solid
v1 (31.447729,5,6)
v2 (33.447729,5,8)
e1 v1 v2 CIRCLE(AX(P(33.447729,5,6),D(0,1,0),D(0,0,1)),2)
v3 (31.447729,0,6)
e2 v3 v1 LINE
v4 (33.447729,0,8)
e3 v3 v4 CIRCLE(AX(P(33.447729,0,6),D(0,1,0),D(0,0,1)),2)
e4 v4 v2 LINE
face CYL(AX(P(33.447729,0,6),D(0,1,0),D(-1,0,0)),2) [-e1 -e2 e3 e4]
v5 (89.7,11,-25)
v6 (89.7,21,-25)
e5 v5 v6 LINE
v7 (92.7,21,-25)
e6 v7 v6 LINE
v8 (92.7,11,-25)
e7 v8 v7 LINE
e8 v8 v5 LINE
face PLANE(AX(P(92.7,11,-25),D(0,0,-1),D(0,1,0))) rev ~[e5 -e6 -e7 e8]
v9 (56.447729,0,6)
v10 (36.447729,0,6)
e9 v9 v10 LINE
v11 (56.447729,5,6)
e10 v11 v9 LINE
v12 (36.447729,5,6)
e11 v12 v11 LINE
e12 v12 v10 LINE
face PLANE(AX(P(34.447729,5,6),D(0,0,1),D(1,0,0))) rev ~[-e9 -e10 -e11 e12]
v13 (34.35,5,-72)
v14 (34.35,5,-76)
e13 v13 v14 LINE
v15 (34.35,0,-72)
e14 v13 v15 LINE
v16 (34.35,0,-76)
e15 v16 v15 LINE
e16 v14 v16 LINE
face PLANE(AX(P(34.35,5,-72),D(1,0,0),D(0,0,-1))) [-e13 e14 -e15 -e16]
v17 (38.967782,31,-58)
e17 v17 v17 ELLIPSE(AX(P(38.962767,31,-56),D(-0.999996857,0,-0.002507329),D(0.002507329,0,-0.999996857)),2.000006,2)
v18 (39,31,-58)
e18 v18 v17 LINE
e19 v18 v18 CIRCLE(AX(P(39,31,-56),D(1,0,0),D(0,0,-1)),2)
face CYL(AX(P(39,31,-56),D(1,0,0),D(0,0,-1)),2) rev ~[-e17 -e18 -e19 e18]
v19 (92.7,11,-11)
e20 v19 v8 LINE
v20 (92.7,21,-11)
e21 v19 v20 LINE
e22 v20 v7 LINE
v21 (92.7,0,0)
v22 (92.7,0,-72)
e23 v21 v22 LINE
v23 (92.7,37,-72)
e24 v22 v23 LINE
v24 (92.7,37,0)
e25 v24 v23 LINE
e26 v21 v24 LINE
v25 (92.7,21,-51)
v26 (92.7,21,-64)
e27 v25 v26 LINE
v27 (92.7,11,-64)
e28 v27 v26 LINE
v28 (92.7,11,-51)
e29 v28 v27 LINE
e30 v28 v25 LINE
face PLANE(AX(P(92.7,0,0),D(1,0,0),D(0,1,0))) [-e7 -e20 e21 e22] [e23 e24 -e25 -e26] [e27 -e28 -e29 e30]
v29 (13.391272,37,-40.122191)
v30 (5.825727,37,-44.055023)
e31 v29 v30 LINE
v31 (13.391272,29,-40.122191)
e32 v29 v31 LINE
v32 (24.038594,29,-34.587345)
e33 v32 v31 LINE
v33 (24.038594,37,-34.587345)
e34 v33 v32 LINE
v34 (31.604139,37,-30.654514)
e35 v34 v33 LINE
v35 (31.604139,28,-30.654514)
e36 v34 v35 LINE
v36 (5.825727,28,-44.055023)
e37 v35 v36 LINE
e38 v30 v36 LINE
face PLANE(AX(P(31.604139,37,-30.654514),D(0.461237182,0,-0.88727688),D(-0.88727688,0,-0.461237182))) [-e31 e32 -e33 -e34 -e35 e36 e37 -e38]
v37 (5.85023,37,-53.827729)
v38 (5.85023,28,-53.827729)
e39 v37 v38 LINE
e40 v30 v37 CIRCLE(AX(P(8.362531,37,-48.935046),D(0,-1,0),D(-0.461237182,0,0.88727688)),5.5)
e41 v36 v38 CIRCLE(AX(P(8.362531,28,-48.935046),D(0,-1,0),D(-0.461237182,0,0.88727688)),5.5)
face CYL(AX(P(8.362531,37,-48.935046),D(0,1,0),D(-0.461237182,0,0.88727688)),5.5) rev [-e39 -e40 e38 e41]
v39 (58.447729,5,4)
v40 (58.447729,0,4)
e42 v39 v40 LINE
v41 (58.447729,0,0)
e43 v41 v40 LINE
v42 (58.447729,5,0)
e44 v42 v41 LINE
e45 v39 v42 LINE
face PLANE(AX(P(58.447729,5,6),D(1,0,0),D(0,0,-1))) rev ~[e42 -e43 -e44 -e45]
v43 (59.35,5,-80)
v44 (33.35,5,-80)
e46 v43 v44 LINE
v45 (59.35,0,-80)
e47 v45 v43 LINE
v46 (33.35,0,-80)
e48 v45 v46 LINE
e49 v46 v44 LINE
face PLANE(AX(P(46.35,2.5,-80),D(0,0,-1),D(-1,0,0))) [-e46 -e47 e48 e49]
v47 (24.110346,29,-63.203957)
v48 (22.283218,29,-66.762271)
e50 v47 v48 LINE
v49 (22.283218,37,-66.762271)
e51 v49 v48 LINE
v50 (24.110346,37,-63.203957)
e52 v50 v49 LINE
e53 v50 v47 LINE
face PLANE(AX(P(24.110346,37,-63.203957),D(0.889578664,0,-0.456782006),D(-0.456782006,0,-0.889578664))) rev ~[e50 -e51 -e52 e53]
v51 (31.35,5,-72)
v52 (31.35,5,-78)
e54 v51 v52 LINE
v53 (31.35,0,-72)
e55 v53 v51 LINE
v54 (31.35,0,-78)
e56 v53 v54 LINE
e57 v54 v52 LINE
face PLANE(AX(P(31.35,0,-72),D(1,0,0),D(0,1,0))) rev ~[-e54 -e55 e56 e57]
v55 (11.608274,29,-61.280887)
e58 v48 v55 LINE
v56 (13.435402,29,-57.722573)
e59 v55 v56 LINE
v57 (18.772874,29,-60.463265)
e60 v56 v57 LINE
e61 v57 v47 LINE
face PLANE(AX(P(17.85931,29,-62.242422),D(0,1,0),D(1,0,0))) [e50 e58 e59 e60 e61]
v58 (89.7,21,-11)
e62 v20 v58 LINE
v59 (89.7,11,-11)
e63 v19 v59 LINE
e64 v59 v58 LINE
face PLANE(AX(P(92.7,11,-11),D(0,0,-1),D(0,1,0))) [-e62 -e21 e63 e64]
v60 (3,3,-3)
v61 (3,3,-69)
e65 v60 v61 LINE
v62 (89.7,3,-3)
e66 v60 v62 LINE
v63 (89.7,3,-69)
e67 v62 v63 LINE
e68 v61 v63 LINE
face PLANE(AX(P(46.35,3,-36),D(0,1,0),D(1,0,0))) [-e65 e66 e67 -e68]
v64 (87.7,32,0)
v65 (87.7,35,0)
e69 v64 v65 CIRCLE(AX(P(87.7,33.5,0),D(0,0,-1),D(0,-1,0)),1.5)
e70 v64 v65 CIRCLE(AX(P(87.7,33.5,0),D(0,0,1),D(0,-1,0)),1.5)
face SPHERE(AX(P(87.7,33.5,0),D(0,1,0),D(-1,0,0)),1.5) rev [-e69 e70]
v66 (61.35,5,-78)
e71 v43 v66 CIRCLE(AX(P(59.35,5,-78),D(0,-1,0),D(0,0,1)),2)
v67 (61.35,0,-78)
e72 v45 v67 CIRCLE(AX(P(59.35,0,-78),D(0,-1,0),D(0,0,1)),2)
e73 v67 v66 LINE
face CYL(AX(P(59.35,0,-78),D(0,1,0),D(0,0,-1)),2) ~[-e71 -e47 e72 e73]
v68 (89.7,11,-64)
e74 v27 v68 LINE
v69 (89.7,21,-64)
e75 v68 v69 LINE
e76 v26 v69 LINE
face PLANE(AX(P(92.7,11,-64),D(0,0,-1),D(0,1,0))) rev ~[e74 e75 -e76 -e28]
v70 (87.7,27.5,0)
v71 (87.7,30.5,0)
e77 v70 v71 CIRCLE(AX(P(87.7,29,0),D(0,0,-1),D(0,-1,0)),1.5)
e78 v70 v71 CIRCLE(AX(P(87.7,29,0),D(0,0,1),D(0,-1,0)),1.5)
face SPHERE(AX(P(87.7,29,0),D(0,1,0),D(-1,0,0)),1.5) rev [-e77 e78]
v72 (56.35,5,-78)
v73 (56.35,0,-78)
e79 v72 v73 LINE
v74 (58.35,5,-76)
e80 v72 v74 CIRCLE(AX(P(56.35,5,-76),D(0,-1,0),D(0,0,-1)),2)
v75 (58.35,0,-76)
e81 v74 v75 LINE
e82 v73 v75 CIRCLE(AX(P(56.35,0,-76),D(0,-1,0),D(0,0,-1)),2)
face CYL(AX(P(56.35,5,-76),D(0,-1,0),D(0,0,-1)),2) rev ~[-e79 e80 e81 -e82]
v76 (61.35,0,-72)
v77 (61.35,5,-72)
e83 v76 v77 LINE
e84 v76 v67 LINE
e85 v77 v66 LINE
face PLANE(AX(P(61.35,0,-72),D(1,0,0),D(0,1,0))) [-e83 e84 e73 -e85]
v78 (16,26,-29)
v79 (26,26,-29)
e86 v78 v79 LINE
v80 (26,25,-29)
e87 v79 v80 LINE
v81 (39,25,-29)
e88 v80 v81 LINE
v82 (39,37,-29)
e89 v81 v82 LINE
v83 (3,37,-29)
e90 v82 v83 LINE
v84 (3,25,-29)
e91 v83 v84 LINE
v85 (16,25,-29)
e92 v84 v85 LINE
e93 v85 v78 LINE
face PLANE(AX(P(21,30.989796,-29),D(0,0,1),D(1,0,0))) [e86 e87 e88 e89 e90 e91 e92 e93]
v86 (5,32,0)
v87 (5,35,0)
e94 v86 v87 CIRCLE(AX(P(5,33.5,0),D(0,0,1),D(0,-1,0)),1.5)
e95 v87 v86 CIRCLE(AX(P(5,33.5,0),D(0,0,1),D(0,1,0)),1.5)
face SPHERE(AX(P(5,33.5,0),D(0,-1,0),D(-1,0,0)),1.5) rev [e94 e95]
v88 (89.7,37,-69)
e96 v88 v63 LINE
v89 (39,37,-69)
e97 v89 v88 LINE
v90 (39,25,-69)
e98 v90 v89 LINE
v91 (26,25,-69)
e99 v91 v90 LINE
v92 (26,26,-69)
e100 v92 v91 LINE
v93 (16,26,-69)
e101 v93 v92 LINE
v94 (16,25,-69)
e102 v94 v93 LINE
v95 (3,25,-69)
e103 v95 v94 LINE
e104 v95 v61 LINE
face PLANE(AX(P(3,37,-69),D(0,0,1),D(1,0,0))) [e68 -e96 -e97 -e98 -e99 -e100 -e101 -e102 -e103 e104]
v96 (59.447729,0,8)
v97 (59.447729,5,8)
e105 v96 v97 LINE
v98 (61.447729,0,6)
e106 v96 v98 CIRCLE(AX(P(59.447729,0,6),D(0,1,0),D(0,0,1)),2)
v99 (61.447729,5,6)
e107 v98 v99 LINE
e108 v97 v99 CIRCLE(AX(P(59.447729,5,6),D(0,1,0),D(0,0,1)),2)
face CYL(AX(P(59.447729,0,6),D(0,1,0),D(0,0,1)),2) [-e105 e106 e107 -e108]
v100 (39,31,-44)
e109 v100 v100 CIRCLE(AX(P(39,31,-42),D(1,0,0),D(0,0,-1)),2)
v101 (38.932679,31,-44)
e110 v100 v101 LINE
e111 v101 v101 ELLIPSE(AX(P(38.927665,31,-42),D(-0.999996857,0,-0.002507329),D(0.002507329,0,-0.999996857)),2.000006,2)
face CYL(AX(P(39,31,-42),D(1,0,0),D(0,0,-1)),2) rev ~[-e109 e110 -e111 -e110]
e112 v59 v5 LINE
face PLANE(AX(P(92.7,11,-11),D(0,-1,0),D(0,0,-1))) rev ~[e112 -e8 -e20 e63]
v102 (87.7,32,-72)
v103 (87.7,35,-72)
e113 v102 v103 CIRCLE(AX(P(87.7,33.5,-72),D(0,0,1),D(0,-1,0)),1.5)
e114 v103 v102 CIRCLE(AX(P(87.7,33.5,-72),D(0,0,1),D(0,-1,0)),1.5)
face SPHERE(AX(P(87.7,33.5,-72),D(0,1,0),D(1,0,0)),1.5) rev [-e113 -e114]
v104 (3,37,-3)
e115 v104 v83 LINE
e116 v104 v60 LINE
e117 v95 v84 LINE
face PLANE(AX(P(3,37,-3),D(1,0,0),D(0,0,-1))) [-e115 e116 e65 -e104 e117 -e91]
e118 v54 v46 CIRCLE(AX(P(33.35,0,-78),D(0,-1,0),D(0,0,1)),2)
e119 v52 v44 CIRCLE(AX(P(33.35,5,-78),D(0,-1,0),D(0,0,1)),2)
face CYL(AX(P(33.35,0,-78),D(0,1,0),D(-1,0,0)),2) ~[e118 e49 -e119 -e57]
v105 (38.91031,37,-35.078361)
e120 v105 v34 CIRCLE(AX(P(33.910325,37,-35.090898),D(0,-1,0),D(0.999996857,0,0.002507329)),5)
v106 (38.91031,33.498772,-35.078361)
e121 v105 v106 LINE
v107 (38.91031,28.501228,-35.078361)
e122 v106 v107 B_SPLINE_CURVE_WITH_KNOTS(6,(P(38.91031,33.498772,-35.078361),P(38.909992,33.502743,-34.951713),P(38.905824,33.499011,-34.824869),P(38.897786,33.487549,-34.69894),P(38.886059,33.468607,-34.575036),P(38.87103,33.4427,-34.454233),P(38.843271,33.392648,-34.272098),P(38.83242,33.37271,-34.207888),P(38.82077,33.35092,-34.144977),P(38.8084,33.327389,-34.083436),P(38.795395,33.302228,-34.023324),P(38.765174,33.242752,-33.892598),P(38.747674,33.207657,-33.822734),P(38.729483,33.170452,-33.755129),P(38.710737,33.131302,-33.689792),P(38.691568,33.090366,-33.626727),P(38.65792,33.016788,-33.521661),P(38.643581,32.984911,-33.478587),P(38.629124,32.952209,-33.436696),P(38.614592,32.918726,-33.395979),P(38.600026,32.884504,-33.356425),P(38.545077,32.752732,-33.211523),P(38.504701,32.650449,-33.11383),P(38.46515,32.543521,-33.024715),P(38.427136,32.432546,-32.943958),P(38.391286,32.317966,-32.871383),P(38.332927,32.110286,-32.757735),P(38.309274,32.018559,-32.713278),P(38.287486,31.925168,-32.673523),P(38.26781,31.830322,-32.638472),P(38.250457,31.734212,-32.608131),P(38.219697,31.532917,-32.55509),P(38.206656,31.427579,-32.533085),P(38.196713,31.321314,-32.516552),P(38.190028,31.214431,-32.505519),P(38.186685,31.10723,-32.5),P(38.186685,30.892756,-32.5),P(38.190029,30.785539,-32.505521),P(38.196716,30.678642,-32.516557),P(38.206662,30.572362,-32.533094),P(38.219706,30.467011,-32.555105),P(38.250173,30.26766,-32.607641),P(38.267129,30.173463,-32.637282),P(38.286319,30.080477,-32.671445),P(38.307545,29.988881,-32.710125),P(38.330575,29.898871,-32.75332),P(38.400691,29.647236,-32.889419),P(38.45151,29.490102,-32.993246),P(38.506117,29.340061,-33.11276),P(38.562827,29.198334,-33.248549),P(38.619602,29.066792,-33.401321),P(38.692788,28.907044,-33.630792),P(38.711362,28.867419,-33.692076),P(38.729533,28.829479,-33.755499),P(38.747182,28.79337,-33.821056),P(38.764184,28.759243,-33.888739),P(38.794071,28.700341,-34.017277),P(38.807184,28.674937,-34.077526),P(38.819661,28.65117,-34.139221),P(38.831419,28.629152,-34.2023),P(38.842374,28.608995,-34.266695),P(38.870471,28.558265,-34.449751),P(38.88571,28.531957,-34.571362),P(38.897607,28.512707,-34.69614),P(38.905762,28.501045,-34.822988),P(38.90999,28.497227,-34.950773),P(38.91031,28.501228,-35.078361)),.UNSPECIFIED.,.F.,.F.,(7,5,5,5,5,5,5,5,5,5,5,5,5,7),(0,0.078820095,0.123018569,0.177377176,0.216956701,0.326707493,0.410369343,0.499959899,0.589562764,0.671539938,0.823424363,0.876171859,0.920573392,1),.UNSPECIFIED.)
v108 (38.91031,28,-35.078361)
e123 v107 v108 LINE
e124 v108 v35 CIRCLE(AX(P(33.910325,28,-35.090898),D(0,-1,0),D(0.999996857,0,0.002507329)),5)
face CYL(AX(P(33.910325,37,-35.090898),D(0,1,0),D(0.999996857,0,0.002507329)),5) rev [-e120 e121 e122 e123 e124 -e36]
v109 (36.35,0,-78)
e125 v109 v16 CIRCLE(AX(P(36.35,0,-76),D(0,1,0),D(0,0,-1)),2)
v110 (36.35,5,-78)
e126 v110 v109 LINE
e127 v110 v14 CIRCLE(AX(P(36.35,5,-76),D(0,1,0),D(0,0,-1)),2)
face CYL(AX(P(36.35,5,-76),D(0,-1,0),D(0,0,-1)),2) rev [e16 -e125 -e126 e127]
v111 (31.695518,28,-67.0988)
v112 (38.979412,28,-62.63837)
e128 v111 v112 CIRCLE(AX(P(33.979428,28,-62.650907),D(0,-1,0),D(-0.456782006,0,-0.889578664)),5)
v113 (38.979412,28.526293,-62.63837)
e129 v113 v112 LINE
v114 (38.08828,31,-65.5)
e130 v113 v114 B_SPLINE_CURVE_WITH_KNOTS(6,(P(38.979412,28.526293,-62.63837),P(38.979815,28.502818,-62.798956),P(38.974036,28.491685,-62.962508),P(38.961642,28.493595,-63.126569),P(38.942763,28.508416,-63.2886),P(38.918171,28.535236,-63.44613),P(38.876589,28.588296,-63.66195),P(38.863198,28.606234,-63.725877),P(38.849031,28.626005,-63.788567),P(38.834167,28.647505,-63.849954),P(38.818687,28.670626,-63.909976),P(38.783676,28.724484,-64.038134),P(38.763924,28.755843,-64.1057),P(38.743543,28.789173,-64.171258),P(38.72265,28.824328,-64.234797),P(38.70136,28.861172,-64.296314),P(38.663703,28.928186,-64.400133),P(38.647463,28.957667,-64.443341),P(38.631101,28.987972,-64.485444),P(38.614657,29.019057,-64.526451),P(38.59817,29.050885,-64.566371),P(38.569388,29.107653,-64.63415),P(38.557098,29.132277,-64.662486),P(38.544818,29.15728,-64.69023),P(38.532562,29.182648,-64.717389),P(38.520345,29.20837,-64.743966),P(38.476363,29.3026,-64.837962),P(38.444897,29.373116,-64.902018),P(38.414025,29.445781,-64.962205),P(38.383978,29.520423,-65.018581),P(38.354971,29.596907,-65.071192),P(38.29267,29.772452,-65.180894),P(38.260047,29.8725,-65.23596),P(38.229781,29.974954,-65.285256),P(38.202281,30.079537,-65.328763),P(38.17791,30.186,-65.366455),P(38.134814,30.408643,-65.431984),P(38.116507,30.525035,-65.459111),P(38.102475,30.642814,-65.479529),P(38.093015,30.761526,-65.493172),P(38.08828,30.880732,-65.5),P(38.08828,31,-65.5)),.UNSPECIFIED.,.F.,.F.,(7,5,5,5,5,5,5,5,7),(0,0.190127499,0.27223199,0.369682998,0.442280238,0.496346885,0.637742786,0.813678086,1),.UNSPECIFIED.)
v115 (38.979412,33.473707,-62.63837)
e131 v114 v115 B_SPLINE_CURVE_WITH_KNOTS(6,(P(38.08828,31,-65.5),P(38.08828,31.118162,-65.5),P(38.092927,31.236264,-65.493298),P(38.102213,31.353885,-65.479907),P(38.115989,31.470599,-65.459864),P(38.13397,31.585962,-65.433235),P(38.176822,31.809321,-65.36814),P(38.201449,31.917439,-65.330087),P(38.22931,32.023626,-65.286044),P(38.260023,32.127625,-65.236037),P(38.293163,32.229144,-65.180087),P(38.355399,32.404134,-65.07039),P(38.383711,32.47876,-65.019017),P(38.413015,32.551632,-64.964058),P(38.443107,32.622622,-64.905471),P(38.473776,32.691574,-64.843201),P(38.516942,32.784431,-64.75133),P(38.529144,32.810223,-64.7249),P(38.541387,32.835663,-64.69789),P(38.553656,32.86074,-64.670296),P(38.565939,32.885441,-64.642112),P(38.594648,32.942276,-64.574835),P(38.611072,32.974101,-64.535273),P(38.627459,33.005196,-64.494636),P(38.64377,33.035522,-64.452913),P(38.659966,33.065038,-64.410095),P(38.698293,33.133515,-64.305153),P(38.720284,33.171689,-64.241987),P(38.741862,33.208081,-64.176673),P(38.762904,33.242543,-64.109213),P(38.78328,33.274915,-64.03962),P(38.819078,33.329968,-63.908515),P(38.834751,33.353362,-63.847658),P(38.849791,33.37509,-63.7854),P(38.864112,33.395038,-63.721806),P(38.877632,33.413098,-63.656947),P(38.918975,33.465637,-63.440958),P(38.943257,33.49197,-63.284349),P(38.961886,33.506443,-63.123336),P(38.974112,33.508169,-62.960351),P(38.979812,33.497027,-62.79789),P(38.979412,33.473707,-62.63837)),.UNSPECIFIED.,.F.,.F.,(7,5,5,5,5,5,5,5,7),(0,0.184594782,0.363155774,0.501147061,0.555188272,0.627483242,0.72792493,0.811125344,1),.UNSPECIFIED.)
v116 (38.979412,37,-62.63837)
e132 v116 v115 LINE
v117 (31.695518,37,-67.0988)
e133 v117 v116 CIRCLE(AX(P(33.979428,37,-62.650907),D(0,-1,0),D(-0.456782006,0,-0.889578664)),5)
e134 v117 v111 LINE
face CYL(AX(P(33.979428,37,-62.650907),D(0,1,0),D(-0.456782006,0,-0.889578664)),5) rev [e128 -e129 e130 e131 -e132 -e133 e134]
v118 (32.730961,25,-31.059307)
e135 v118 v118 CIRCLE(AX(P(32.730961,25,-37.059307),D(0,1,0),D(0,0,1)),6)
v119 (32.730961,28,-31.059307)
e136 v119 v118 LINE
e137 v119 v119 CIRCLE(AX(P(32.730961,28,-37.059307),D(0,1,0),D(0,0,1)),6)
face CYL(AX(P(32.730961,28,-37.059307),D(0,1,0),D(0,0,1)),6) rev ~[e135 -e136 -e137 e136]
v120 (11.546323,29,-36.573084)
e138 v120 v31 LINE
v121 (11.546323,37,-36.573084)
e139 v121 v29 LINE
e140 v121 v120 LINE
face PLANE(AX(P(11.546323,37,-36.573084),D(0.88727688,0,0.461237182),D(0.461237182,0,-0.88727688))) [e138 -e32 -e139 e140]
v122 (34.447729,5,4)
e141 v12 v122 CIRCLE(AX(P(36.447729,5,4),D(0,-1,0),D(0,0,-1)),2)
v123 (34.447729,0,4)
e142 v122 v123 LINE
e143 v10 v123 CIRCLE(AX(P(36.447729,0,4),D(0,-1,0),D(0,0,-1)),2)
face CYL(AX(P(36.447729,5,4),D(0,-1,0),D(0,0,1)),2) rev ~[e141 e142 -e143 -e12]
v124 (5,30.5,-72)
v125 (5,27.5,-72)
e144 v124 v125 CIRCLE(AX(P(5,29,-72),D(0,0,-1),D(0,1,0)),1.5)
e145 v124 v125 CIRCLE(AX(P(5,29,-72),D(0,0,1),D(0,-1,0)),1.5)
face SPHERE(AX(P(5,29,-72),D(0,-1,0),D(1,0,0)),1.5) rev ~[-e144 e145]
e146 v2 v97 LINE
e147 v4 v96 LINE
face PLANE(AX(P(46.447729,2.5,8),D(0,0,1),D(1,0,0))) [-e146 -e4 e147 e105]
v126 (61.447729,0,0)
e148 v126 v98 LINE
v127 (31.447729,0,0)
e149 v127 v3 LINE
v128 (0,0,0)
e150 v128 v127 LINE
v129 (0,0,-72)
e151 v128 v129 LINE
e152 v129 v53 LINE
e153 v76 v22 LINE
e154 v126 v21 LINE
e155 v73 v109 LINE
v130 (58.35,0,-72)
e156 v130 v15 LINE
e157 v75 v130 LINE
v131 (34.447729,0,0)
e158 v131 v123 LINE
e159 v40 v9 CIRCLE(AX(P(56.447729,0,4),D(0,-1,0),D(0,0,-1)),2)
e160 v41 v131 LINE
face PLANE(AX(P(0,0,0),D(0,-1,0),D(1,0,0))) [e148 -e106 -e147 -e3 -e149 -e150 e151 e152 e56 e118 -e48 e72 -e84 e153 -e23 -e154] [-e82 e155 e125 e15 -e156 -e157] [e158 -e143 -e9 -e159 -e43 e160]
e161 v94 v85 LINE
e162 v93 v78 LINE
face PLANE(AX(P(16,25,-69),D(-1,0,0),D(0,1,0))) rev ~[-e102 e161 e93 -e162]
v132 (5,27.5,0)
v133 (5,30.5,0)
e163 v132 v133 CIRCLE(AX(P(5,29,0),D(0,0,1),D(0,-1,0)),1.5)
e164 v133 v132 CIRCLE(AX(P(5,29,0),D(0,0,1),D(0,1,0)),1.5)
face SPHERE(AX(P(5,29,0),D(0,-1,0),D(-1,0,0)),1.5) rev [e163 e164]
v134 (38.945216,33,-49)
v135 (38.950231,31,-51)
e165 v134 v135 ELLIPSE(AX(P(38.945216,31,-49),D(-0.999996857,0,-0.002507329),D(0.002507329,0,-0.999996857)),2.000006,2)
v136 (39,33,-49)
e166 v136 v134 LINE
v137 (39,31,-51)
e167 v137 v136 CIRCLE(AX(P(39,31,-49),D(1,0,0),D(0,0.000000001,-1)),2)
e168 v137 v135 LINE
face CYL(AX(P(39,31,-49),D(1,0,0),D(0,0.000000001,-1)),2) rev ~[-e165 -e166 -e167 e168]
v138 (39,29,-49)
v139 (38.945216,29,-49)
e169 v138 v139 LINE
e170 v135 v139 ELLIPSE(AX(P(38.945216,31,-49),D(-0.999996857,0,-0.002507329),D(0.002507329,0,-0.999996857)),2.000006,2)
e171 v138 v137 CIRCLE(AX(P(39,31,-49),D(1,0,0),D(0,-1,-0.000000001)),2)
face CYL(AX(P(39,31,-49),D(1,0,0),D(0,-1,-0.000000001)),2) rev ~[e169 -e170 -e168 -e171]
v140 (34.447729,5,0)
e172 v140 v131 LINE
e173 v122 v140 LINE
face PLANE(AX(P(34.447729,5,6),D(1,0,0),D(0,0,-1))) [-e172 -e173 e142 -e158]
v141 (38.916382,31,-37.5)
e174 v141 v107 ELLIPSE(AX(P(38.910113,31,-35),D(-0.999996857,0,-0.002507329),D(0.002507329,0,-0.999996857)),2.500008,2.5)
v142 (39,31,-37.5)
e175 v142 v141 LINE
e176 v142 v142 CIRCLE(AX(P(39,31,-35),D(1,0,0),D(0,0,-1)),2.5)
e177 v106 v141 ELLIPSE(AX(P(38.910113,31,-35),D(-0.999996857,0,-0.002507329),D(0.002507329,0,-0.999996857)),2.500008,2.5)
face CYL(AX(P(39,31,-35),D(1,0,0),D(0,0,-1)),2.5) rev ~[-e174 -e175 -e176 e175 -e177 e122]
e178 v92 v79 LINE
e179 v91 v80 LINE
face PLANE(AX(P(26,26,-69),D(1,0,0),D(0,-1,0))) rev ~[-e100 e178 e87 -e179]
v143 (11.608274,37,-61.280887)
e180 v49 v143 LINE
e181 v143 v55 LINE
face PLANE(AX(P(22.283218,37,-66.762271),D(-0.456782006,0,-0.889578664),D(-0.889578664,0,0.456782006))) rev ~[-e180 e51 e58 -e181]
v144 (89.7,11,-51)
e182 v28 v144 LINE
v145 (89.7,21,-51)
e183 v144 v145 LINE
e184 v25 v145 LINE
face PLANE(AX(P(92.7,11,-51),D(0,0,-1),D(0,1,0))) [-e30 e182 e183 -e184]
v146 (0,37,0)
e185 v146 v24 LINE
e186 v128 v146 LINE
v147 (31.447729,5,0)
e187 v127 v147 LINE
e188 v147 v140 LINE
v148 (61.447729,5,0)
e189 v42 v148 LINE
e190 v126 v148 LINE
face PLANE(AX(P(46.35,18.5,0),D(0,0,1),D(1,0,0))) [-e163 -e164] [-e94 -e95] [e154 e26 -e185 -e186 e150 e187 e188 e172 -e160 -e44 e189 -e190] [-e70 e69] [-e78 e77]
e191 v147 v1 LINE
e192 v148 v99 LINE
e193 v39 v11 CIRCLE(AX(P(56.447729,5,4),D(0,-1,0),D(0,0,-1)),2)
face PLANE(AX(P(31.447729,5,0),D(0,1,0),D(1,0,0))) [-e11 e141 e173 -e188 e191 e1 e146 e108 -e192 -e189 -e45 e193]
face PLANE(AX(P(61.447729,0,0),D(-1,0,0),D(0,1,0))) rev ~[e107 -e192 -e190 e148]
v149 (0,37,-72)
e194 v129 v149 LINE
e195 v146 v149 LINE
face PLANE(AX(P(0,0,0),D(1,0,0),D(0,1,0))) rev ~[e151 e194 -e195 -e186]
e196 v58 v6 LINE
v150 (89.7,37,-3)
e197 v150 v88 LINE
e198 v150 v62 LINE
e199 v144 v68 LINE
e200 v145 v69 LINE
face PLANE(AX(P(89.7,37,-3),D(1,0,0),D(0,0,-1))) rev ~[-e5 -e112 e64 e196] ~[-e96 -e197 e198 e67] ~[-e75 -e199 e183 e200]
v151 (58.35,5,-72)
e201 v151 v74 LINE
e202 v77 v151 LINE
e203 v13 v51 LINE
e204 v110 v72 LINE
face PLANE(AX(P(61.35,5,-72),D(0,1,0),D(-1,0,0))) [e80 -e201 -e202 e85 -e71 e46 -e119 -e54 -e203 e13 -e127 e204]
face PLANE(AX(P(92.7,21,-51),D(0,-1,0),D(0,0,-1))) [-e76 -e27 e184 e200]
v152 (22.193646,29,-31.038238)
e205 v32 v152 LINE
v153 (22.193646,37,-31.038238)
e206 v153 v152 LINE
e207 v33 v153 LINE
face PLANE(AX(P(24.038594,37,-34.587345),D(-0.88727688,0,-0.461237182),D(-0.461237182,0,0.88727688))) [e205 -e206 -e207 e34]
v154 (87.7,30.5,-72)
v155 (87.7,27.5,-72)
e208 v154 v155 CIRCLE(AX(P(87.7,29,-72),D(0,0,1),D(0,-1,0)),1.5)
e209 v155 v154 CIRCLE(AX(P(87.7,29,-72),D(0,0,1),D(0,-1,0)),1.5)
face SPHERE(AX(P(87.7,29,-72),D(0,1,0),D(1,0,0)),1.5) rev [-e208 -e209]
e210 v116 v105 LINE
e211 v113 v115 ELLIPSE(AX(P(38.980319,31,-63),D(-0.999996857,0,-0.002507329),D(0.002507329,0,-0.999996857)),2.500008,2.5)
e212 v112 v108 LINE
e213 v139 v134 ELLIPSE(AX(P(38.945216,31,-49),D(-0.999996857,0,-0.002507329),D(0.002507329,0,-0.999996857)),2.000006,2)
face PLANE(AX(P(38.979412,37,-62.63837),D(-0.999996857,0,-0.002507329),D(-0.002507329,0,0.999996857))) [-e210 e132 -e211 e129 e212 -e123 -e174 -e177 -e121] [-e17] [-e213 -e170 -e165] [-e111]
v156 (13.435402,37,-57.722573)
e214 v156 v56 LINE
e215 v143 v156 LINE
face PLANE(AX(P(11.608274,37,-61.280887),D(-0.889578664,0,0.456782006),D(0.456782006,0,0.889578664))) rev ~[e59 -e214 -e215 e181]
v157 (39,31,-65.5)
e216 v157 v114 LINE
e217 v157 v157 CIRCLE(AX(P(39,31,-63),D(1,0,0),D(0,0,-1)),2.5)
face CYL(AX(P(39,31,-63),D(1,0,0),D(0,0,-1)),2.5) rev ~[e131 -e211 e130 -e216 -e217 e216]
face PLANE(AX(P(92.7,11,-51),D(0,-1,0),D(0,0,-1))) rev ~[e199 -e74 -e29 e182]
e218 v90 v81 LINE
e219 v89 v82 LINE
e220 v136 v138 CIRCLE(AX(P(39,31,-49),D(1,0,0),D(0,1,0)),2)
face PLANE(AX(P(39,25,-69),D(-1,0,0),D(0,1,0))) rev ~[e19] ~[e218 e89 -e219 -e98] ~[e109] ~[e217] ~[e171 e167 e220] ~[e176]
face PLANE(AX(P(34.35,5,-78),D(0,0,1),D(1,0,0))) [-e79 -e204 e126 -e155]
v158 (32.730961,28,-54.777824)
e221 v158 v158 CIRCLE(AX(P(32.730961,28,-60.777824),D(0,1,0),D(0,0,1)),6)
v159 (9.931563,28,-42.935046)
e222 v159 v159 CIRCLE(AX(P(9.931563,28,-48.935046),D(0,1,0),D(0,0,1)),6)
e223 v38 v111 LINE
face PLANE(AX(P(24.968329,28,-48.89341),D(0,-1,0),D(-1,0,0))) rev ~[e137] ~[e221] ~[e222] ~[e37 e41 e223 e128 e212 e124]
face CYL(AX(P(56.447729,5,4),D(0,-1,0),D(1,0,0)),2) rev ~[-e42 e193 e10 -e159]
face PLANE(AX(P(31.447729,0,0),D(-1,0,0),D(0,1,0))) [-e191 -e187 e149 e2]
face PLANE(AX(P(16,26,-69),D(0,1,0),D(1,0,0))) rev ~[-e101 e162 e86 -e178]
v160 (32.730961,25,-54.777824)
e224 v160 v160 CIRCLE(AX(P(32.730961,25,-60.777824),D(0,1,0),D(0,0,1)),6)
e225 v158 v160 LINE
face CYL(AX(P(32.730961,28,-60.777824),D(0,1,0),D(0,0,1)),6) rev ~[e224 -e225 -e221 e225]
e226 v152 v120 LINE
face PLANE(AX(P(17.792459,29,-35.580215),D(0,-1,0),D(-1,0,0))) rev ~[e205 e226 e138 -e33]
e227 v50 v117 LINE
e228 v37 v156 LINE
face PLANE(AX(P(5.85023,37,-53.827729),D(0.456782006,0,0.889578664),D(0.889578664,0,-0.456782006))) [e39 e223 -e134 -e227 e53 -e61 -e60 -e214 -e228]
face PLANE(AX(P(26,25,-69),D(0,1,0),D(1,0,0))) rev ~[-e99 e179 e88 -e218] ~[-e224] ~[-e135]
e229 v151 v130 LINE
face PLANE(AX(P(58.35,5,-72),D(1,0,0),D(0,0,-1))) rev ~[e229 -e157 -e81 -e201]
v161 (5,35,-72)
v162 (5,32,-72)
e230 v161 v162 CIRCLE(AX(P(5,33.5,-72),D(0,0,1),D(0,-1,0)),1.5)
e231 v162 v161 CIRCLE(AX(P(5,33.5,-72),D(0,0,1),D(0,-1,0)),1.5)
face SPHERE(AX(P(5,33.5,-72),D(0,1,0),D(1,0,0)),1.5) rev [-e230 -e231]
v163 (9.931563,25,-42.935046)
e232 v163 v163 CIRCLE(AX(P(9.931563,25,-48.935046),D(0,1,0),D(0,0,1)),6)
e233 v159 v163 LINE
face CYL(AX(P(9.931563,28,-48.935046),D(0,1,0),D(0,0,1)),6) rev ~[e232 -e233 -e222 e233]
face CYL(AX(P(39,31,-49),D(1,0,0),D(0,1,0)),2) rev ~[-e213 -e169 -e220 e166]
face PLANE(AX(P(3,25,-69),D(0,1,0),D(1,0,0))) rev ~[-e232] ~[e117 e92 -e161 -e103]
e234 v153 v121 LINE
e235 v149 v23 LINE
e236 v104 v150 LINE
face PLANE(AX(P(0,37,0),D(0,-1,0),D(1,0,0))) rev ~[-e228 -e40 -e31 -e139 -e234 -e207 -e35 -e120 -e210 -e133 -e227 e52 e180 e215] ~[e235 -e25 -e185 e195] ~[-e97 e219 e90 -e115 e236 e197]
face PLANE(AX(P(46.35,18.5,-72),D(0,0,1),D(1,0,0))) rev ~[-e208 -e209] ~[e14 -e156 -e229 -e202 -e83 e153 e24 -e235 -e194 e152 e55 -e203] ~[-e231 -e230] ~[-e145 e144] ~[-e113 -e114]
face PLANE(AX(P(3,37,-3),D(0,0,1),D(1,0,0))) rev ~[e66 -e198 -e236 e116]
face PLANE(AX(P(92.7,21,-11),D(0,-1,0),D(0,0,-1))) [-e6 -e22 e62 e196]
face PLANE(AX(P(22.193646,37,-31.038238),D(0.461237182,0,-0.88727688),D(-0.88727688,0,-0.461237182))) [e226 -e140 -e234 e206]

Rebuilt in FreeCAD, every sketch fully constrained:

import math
import FreeCAD as App
import Part
import Sketcher


def edges_at(feature, points):
    """Names of the edges that pass closest to the given points."""
    edges = feature.Shape.Edges
    near = lambda p: min(range(len(edges)), key=lambda i: edges[i].distToShape(Part.Vertex(*p))[0])
    return sorted({f"Edge{near(p) + 1}" for p in points})


def add_polygon(sketch, points):
    """Adds a closed chain of lines whose ends are joined by coincident constraints."""
    first, n = sketch.GeometryCount, len(points)
    for a, b in zip(points, points[1:] + points[:1]):
        sketch.addGeometry(Part.LineSegment(App.Vector(*a, 0), App.Vector(*b, 0)), False)
    for i in range(n):
        sketch.addConstraint(Sketcher.Constraint("Coincident", first + i, 2, first + (i + 1) % n, 1))

doc = App.newDocument("Part")
body = doc.addObject("PartDesign::Body", "Body")

# Sketch on XY plane
sketch1 = doc.addObject("Sketcher::SketchObject", "Sketch")
body.addObject(sketch1)
sketch1.AttachmentSupport = (doc.XY_Plane, [""])
sketch1.MapMode = "FlatFace"
add_polygon(sketch1, [(0, 37), (0, 0), (92.7, 0), (92.7, 37)])  # lines 0-3
sketch1.addConstraint([
    Sketcher.Constraint("Vertical", 0),
    Sketcher.Constraint("Horizontal", 1),
    Sketcher.Constraint("Vertical", 2),
    Sketcher.Constraint("Horizontal", 3),
    Sketcher.Constraint("Coincident", 0, 2, -1, 1),
    Sketcher.Constraint("DistanceY", 0, 2, 0, 1, 37.0),
    Sketcher.Constraint("DistanceX", 1, 1, 1, 2, 92.7),
])
pad1 = doc.addObject("PartDesign::Pad", "Pad")
body.addObject(pad1)
pad1.Profile = sketch1
pad1.Length = 72
pad1.Reversed = True

# Sketch on XZ plane
sketch2 = doc.addObject("Sketcher::SketchObject", "Sketch001")
body.addObject(sketch2)
sketch2.AttachmentSupport = (doc.XZ_Plane, [""])
sketch2.MapMode = "FlatFace"
sketch2.AttachmentOffset = App.Placement(App.Vector(0, 0, -37), App.Rotation())
add_polygon(sketch2, [(3, -69), (3, -3), (89.7, -3), (89.7, -69)])  # lines 0-3
sketch2.addConstraint([
    Sketcher.Constraint("Vertical", 0),
    Sketcher.Constraint("Horizontal", 1),
    Sketcher.Constraint("Vertical", 2),
    Sketcher.Constraint("Horizontal", 3),
    Sketcher.Constraint("DistanceY", 0, 1, 0, 2, 66.0),
    Sketcher.Constraint("DistanceX", 1, 1, 1, 2, 86.7),
    Sketcher.Constraint("DistanceX", -1, 1, 0, 2, 3.0),
    Sketcher.Constraint("DistanceY", 0, 2, -1, 1, 3.0),
])
pocket1 = doc.addObject("PartDesign::Pocket", "Pocket")
body.addObject(pocket1)
pocket1.Profile = sketch2
pocket1.Length = 34
pocket1.Reversed = True

# Sketch on YZ plane
sketch3 = doc.addObject("Sketcher::SketchObject", "Sketch002")
body.addObject(sketch3)
sketch3.AttachmentSupport = (doc.YZ_Plane, [""])
sketch3.MapMode = "FlatFace"
sketch3.AttachmentOffset = App.Placement(App.Vector(0, 0, 92.7), App.Rotation())
add_polygon(sketch3, [(21, -51), (11, -51), (11, -64), (21, -64)])  # lines 0-3
add_polygon(sketch3, [(21, -11), (11, -11), (11, -25), (21, -25)])  # lines 4-7
sketch3.addConstraint([
    Sketcher.Constraint("Horizontal", 0),
    Sketcher.Constraint("Vertical", 1),
    Sketcher.Constraint("Horizontal", 2),
    Sketcher.Constraint("Vertical", 3),
    Sketcher.Constraint("Horizontal", 4),
    Sketcher.Constraint("Vertical", 5),
    Sketcher.Constraint("Horizontal", 6),
    Sketcher.Constraint("Vertical", 7),
    Sketcher.Constraint("Vertical", 1, 2, 4, 2),
    Sketcher.Constraint("Vertical", 3, 2, 6, 2),
    Sketcher.Constraint("DistanceX", 0, 2, 0, 1, 10.0),
    Sketcher.Constraint("DistanceY", 1, 2, 1, 1, 13.0),
    Sketcher.Constraint("DistanceY", 5, 2, 5, 1, 14.0),
    Sketcher.Constraint("DistanceX", -1, 1, 0, 2, 11.0),
    Sketcher.Constraint("DistanceY", 0, 2, -1, 1, 51.0),
    Sketcher.Constraint("DistanceY", 4, 2, -1, 1, 11.0),
])
pocket2 = doc.addObject("PartDesign::Pocket", "Pocket001")
body.addObject(pocket2)
pocket2.Profile = sketch3
pocket2.Length = 3

# Sketch on XY plane
sketch4 = doc.addObject("Sketcher::SketchObject", "Sketch003")
body.addObject(sketch4)
sketch4.AttachmentSupport = (doc.XY_Plane, [""])
sketch4.MapMode = "FlatFace"
add_polygon(sketch4, [(31.447729, 5), (31.447729, 0), (61.447729, 0), (61.447729, 5)])  # lines 0-3
sketch4.addConstraint([
    Sketcher.Constraint("Vertical", 0),
    Sketcher.Constraint("Horizontal", 1),
    Sketcher.Constraint("Vertical", 2),
    Sketcher.Constraint("Horizontal", 3),
    Sketcher.Constraint("PointOnObject", 0, 2, -1),
    Sketcher.Constraint("DistanceX", 1, 1, 1, 2, 30.0),
    Sketcher.Constraint("DistanceY", 0, 2, 0, 1, 5.0),
    Sketcher.Constraint("DistanceX", -1, 1, 0, 2, 31.447729),
])
pad2 = doc.addObject("PartDesign::Pad", "Pad001")
body.addObject(pad2)
pad2.Profile = sketch4
pad2.Length = 8

# Sketch on XZ plane
sketch5 = doc.addObject("Sketcher::SketchObject", "Sketch004")
body.addObject(sketch5)
sketch5.AttachmentSupport = (doc.XZ_Plane, [""])
sketch5.MapMode = "FlatFace"
sketch5.AttachmentOffset = App.Placement(App.Vector(0, 0, -5), App.Rotation())
add_polygon(sketch5, [(34.447729, 0), (34.447729, 6), (58.447729, 6), (58.447729, 0)])  # lines 0-3
sketch5.addConstraint([
    Sketcher.Constraint("Vertical", 0),
    Sketcher.Constraint("Horizontal", 1),
    Sketcher.Constraint("Vertical", 2),
    Sketcher.Constraint("Horizontal", 3),
    Sketcher.Constraint("PointOnObject", 2, 2, -1),
    Sketcher.Constraint("DistanceX", 1, 1, 1, 2, 24.0),
    Sketcher.Constraint("DistanceY", 0, 1, 0, 2, 6.0),
    Sketcher.Constraint("DistanceX", -1, 1, 0, 2, 34.447729),
])
pocket3 = doc.addObject("PartDesign::Pocket", "Pocket002")
body.addObject(pocket3)
pocket3.Profile = sketch5
pocket3.Length = 8
pocket3.Reversed = True
doc.recompute()

fillet = doc.addObject("PartDesign::Fillet", "Fillet")
body.addObject(fillet)
fillet.Base = (pocket3, edges_at(pocket3, [(31.448, 2.5, 8), (61.448, 2.5, 8)]))
fillet.Radius = 2
doc.recompute()

fillet2 = doc.addObject("PartDesign::Fillet", "Fillet001")
body.addObject(fillet2)
fillet2.Base = (fillet, edges_at(fillet, [(58.448, 2.5, 6), (34.448, 2.5, 6)]))
fillet2.Radius = 2

# Sketch on XY plane
sketch6 = doc.addObject("Sketcher::SketchObject", "Sketch005")
body.addObject(sketch6)
sketch6.AttachmentSupport = (doc.XY_Plane, [""])
sketch6.MapMode = "FlatFace"
sketch6.AttachmentOffset = App.Placement(App.Vector(0, 0, -72), App.Rotation())
add_polygon(sketch6, [(61.35, 5), (61.35, 0), (31.35, 0), (31.35, 5)])  # lines 0-3
sketch6.addConstraint([
    Sketcher.Constraint("Vertical", 0),
    Sketcher.Constraint("Horizontal", 1),
    Sketcher.Constraint("Vertical", 2),
    Sketcher.Constraint("Horizontal", 3),
    Sketcher.Constraint("PointOnObject", 0, 2, -1),
    Sketcher.Constraint("DistanceX", 1, 2, 1, 1, 30.0),
    Sketcher.Constraint("DistanceY", 0, 2, 0, 1, 5.0),
    Sketcher.Constraint("DistanceX", -1, 1, 0, 2, 61.35),
])
pad3 = doc.addObject("PartDesign::Pad", "Pad002")
body.addObject(pad3)
pad3.Profile = sketch6
pad3.Length = 8
pad3.Reversed = True

# Sketch on XZ plane
sketch7 = doc.addObject("Sketcher::SketchObject", "Sketch006")
body.addObject(sketch7)
sketch7.AttachmentSupport = (doc.XZ_Plane, [""])
sketch7.MapMode = "FlatFace"
sketch7.AttachmentOffset = App.Placement(App.Vector(0, 0, -5), App.Rotation())
add_polygon(sketch7, [(34.35, -78), (34.35, -72), (58.35, -72), (58.35, -78)])  # lines 0-3
sketch7.addConstraint([
    Sketcher.Constraint("Vertical", 0),
    Sketcher.Constraint("Horizontal", 1),
    Sketcher.Constraint("Vertical", 2),
    Sketcher.Constraint("Horizontal", 3),
    Sketcher.Constraint("DistanceX", 1, 1, 1, 2, 24.0),
    Sketcher.Constraint("DistanceY", 0, 1, 0, 2, 6.0),
    Sketcher.Constraint("DistanceY", 0, 2, -1, 1, 72.0),
    Sketcher.Constraint("DistanceX", -1, 1, 0, 2, 34.35),
])
pocket4 = doc.addObject("PartDesign::Pocket", "Pocket003")
body.addObject(pocket4)
pocket4.Profile = sketch7
pocket4.Length = 8
pocket4.Reversed = True
doc.recompute()

fillet3 = doc.addObject("PartDesign::Fillet", "Fillet002")
body.addObject(fillet3)
fillet3.Base = (pocket4, edges_at(pocket4, [
    (61.35, 2.5, -80),
    (31.35, 2.5, -80),
    (34.35, 2.5, -78),
    (58.35, 2.5, -78),
]))
fillet3.Radius = 2

# Sketch on XY plane
sketch8 = doc.addObject("Sketcher::SketchObject", "Sketch007")
body.addObject(sketch8)
sketch8.AttachmentSupport = (doc.XY_Plane, [""])
sketch8.MapMode = "FlatFace"
sketch8.AttachmentOffset = App.Placement(App.Vector(0, 0, -69), App.Rotation())
add_polygon(sketch8, [(3, 37), (3, 25), (16, 25), (16, 26), (26, 26), (26, 25), (39, 25), (39, 37)])  # lines 0-7
sketch8.addConstraint([
    Sketcher.Constraint("Vertical", 0),
    Sketcher.Constraint("Horizontal", 1),
    Sketcher.Constraint("Vertical", 2),
    Sketcher.Constraint("Horizontal", 3),
    Sketcher.Constraint("Vertical", 4),
    Sketcher.Constraint("Horizontal", 5),
    Sketcher.Constraint("Vertical", 6),
    Sketcher.Constraint("Horizontal", 7),
    Sketcher.Constraint("Horizontal", 1, 2, 4, 2),
    Sketcher.Constraint("Equal", 1, 5),
    Sketcher.Constraint("DistanceX", 1, 1, 1, 2, 13.0),
    Sketcher.Constraint("DistanceX", 3, 1, 3, 2, 10.0),
    Sketcher.Constraint("DistanceY", 0, 2, 0, 1, 12.0),
    Sketcher.Constraint("DistanceY", 2, 1, 2, 2, 1.0),
    Sketcher.Constraint("DistanceX", -1, 1, 0, 2, 3.0),
    Sketcher.Constraint("DistanceY", -1, 1, 0, 2, 25.0),
])
pad4 = doc.addObject("PartDesign::Pad", "Pad003")
body.addObject(pad4)
pad4.Profile = sketch8
pad4.Length = 40

# Sketch on XZ plane
sketch9 = doc.addObject("Sketcher::SketchObject", "Sketch008")
body.addObject(sketch9)
sketch9.AttachmentSupport = (doc.XZ_Plane, [""])
sketch9.MapMode = "FlatFace"
sketch9.AttachmentOffset = App.Placement(App.Vector(0, 0, -37), App.Rotation())
sketch9.addGeometry([
    Part.LineSegment(App.Vector(5.825727, -44.055023, 0), App.Vector(31.604139, -30.654514, 0)),  # 0
    Part.ArcOfCircle(Part.Circle(App.Vector(33.910325, -35.090898, 0), App.Vector(0, 0, 1), 5), math.radians(0.14366), math.radians(117.466969)),  # 1
    Part.LineSegment(App.Vector(38.91031, -35.078361, 0), App.Vector(38.979412, -62.63837, 0)),  # 2
    Part.ArcOfCircle(Part.Circle(App.Vector(33.979428, -62.650907, 0), App.Vector(0, 0, 1), 5), math.radians(-117.17965), math.radians(0.14366)),  # 3
    Part.LineSegment(App.Vector(31.695518, -67.0988, 0), App.Vector(5.85023, -53.827729, 0)),  # 4
    Part.ArcOfCircle(Part.Circle(App.Vector(8.362531, -48.935046, 0), App.Vector(0, 0, 1), 5.5), math.radians(117.466969), math.radians(242.82035)),  # 5
], False)
sketch9.addConstraint([
    Sketcher.Constraint("Tangent", 0, 2, 1, 2),
    Sketcher.Constraint("Tangent", 1, 1, 2, 1),
    Sketcher.Constraint("Tangent", 2, 2, 3, 2),
    Sketcher.Constraint("Tangent", 3, 1, 4, 1),
    Sketcher.Constraint("Tangent", 4, 2, 5, 2),
    Sketcher.Constraint("Tangent", 5, 1, 0, 1),
    Sketcher.Constraint("Equal", 1, 3),
    Sketcher.Constraint("Equal", 0, 4),
    Sketcher.Constraint("Radius", 1, 5.0),
    Sketcher.Constraint("Radius", 5, 5.5),
    Sketcher.Constraint("DistanceY", 3, 1, -1, 1, 67.0988),
    Sketcher.Constraint("DistanceX", 4, 2, 5, 3, 2.512301),
    Sketcher.Constraint("DistanceX", 5, 1, 1, 3, 28.084599),
    Sketcher.Constraint("DistanceX", 5, 1, 3, 3, 28.153701),
    Sketcher.Constraint("DistanceX", -1, 1, 5, 3, 8.362531),
])
pocket5 = doc.addObject("PartDesign::Pocket", "Pocket004")
body.addObject(pocket5)
pocket5.Profile = sketch9
pocket5.Length = 9
pocket5.Reversed = True

# Sketch on XZ plane
sketch10 = doc.addObject("Sketcher::SketchObject", "Sketch009")
body.addObject(sketch10)
sketch10.AttachmentSupport = (doc.XZ_Plane, [""])
sketch10.MapMode = "FlatFace"
sketch10.AttachmentOffset = App.Placement(App.Vector(0, 0, -28), App.Rotation())
sketch10.addGeometry([
    Part.Circle(App.Vector(32.730961, -37.059307, 0), App.Vector(0, 0, 1), 6),
    Part.Circle(App.Vector(32.730961, -60.777824, 0), App.Vector(0, 0, 1), 6),
    Part.Circle(App.Vector(9.931563, -48.935046, 0), App.Vector(0, 0, 1), 6),
], False)
sketch10.addConstraint([
    Sketcher.Constraint("Equal", 0, 1),
    Sketcher.Constraint("Equal", 1, 2),
    Sketcher.Constraint("Vertical", 0, 3, 1, 3),
    Sketcher.Constraint("Diameter", 0, 12.0),
    Sketcher.Constraint("DistanceX", -1, 1, 0, 3, 32.730961),
    Sketcher.Constraint("DistanceY", 2, 3, 0, 3, 11.875739),
    Sketcher.Constraint("DistanceY", 0, 3, -1, 1, 37.059307),
    Sketcher.Constraint("DistanceY", 1, 3, -1, 1, 60.777824),
    Sketcher.Constraint("DistanceX", -1, 1, 2, 3, 9.931563),
])
pocket6 = doc.addObject("PartDesign::Pocket", "Pocket005")
body.addObject(pocket6)
pocket6.Profile = sketch10
pocket6.Length = 12
pocket6.Reversed = True

# Sketch on XZ plane
sketch11 = doc.addObject("Sketcher::SketchObject", "Sketch010")
body.addObject(sketch11)
sketch11.AttachmentSupport = (doc.XZ_Plane, [""])
sketch11.MapMode = "FlatFace"
sketch11.AttachmentOffset = App.Placement(App.Vector(0, 0, -37), App.Rotation())
add_polygon(sketch11, [(18.772874, -60.463265), (24.110346, -63.203957), (22.283218, -66.762271), (11.608274, -61.280887), (13.435402, -57.722573)])  # lines 0-4
add_polygon(sketch11, [(24.038594, -34.587345), (13.391272, -40.122191), (11.546323, -36.573084), (22.193646, -31.038238)])  # lines 5-8
sketch11.addConstraint([
    Sketcher.Constraint("Perpendicular", 0, 1),
    Sketcher.Constraint("Perpendicular", 1, 2),
    Sketcher.Constraint("Perpendicular", 2, 3),
    Sketcher.Constraint("Perpendicular", 3, 4),
    Sketcher.Constraint("Perpendicular", 5, 6),
    Sketcher.Constraint("Perpendicular", 6, 7),
    Sketcher.Constraint("Perpendicular", 7, 8),
    Sketcher.Constraint("Equal", 0, 4),
    Sketcher.Constraint("Equal", 2, 5),
    Sketcher.Constraint("Equal", 3, 6),
    Sketcher.Constraint("Distance", 0, 6.0),
    Sketcher.Constraint("Distance", 1, 4.0),
    Sketcher.Constraint("DistanceX", -1, 1, 3, 2, 13.435402),
    Sketcher.Constraint("DistanceY", 1, 2, 3, 2, 9.039699),
    Sketcher.Constraint("DistanceY", 1, 2, -1, 1, 66.762271),
    Sketcher.Constraint("DistanceX", -1, 1, 5, 2, 13.391272),
    Sketcher.Constraint("DistanceY", 5, 2, -1, 1, 40.122191),
    Sketcher.Constraint("DistanceX", 6, 2, 5, 2, 1.844949),
])
pocket7 = doc.addObject("PartDesign::Pocket", "Pocket006")
body.addObject(pocket7)
pocket7.Profile = sketch11
pocket7.Length = 8
pocket7.Reversed = True

# Sketch on XY plane
sketch12 = doc.addObject("Sketcher::SketchObject", "Sketch011")
body.addObject(sketch12)
sketch12.AttachmentSupport = (doc.XY_Plane, [""])
sketch12.MapMode = "FlatFace"
sketch12.addGeometry([
    Part.LineSegment(App.Vector(5, 32, 0), App.Vector(5, 35, 0)),
    Part.ArcOfCircle(Part.Circle(App.Vector(5, 33.5, 0), App.Vector(0, 0, 1), 1.5), math.radians(90), math.radians(270)),
    Part.LineSegment(App.Vector(5, 27.5, 0), App.Vector(5, 30.5, 0)),
    Part.ArcOfCircle(Part.Circle(App.Vector(5, 29, 0), App.Vector(0, 0, 1), 1.5), math.radians(90), math.radians(270)),
], False)
sketch12.addGeometry(Part.LineSegment(App.Vector(5, 27.5, 0), App.Vector(5, 35, 0)), True)  # axis
sketch12.addConstraint([
    Sketcher.Constraint("Coincident", 0, 1, 1, 2),
    Sketcher.Constraint("Coincident", 1, 1, 0, 2),
    Sketcher.Constraint("Coincident", 2, 1, 3, 2),
    Sketcher.Constraint("Coincident", 3, 1, 2, 2),
    Sketcher.Constraint("Vertical", 0),
    Sketcher.Constraint("Vertical", 2),
    Sketcher.Constraint("Vertical", 4),
    Sketcher.Constraint("Coincident", 4, 1, 2, 1),
    Sketcher.Constraint("Coincident", 4, 2, 1, 1),
    Sketcher.Constraint("Equal", 1, 3),
    Sketcher.Constraint("Vertical", 1, 3, 3, 3),
    Sketcher.Constraint("Vertical", 3, 3, 0, 1),
    Sketcher.Constraint("Radius", 1, 1.5),
    Sketcher.Constraint("DistanceY", 4, 1, 4, 2, 7.5),
    Sketcher.Constraint("DistanceX", -1, 1, 1, 3, 5.0),
    Sketcher.Constraint("DistanceY", -1, 1, 3, 3, 29.0),
])
groove = doc.addObject("PartDesign::Groove", "Groove")
body.addObject(groove)
groove.Profile = sketch12
groove.ReferenceAxis = (sketch12, ["Axis0"])
groove.Angle = 360

# Sketch on XY plane
sketch13 = doc.addObject("Sketcher::SketchObject", "Sketch012")
body.addObject(sketch13)
sketch13.AttachmentSupport = (doc.XY_Plane, [""])
sketch13.MapMode = "FlatFace"
sketch13.addGeometry([
    Part.LineSegment(App.Vector(87.7, 32, 0), App.Vector(87.7, 35, 0)),
    Part.ArcOfCircle(Part.Circle(App.Vector(87.7, 33.5, 0), App.Vector(0, 0, 1), 1.5), math.radians(90), math.radians(270)),
    Part.LineSegment(App.Vector(87.7, 27.5, 0), App.Vector(87.7, 30.5, 0)),
    Part.ArcOfCircle(Part.Circle(App.Vector(87.7, 29, 0), App.Vector(0, 0, 1), 1.5), math.radians(90), math.radians(270)),
], False)
sketch13.addGeometry(Part.LineSegment(App.Vector(87.7, 35, 0), App.Vector(87.7, 27.5, 0)), True)  # axis
sketch13.addConstraint([
    Sketcher.Constraint("Coincident", 0, 1, 1, 2),
    Sketcher.Constraint("Coincident", 1, 1, 0, 2),
    Sketcher.Constraint("Coincident", 2, 1, 3, 2),
    Sketcher.Constraint("Coincident", 3, 1, 2, 2),
    Sketcher.Constraint("Vertical", 0),
    Sketcher.Constraint("Vertical", 2),
    Sketcher.Constraint("Vertical", 4),
    Sketcher.Constraint("Coincident", 4, 1, 1, 1),
    Sketcher.Constraint("Coincident", 4, 2, 2, 1),
    Sketcher.Constraint("Equal", 1, 3),
    Sketcher.Constraint("Vertical", 1, 3, 3, 3),
    Sketcher.Constraint("Vertical", 3, 3, 0, 1),
    Sketcher.Constraint("Radius", 1, 1.5),
    Sketcher.Constraint("DistanceY", 4, 2, 4, 1, 7.5),
    Sketcher.Constraint("DistanceY", -1, 1, 3, 3, 29.0),
    Sketcher.Constraint("DistanceX", -1, 1, 1, 3, 87.7),
])
groove2 = doc.addObject("PartDesign::Groove", "Groove001")
body.addObject(groove2)
groove2.Profile = sketch13
groove2.ReferenceAxis = (sketch13, ["Axis0"])
groove2.Angle = 360

# Sketch on XY plane
sketch14 = doc.addObject("Sketcher::SketchObject", "Sketch013")
body.addObject(sketch14)
sketch14.AttachmentSupport = (doc.XY_Plane, [""])
sketch14.MapMode = "FlatFace"
sketch14.AttachmentOffset = App.Placement(App.Vector(0, 0, -72), App.Rotation())
sketch14.addGeometry([
    Part.LineSegment(App.Vector(87.7, 32, 0), App.Vector(87.7, 35, 0)),
    Part.ArcOfCircle(Part.Circle(App.Vector(87.7, 33.5, 0), App.Vector(0, 0, 1), 1.5), math.radians(-90), math.radians(90)),
    Part.LineSegment(App.Vector(87.7, 27.5, 0), App.Vector(87.7, 30.5, 0)),
    Part.ArcOfCircle(Part.Circle(App.Vector(87.7, 29, 0), App.Vector(0, 0, 1), 1.5), math.radians(-90), math.radians(90)),
], False)
sketch14.addGeometry(Part.LineSegment(App.Vector(87.7, 35, 0), App.Vector(87.7, 27.5, 0)), True)  # axis
sketch14.addConstraint([
    Sketcher.Constraint("Coincident", 0, 1, 1, 1),
    Sketcher.Constraint("Coincident", 1, 2, 0, 2),
    Sketcher.Constraint("Coincident", 2, 1, 3, 1),
    Sketcher.Constraint("Coincident", 3, 2, 2, 2),
    Sketcher.Constraint("Vertical", 0),
    Sketcher.Constraint("Vertical", 2),
    Sketcher.Constraint("Vertical", 4),
    Sketcher.Constraint("Coincident", 4, 1, 1, 2),
    Sketcher.Constraint("Coincident", 4, 2, 2, 1),
    Sketcher.Constraint("Equal", 1, 3),
    Sketcher.Constraint("Vertical", 1, 3, 3, 3),
    Sketcher.Constraint("Vertical", 3, 3, 0, 1),
    Sketcher.Constraint("Radius", 1, 1.5),
    Sketcher.Constraint("DistanceY", 4, 2, 4, 1, 7.5),
    Sketcher.Constraint("DistanceY", -1, 1, 3, 3, 29.0),
    Sketcher.Constraint("DistanceX", -1, 1, 1, 3, 87.7),
])
groove3 = doc.addObject("PartDesign::Groove", "Groove002")
body.addObject(groove3)
groove3.Profile = sketch14
groove3.ReferenceAxis = (sketch14, ["Axis0"])
groove3.Angle = 360

# Sketch on XY plane
sketch15 = doc.addObject("Sketcher::SketchObject", "Sketch014")
body.addObject(sketch15)
sketch15.AttachmentSupport = (doc.XY_Plane, [""])
sketch15.MapMode = "FlatFace"
sketch15.AttachmentOffset = App.Placement(App.Vector(0, 0, -72), App.Rotation())
sketch15.addGeometry([
    Part.LineSegment(App.Vector(5, 32, 0), App.Vector(5, 35, 0)),
    Part.ArcOfCircle(Part.Circle(App.Vector(5, 33.5, 0), App.Vector(0, 0, 1), 1.5), math.radians(-90), math.radians(90)),
    Part.LineSegment(App.Vector(5, 27.5, 0), App.Vector(5, 30.5, 0)),
    Part.ArcOfCircle(Part.Circle(App.Vector(5, 29, 0), App.Vector(0, 0, 1), 1.5), math.radians(-90), math.radians(90)),
], False)
sketch15.addGeometry(Part.LineSegment(App.Vector(5, 35, 0), App.Vector(5, 27.5, 0)), True)  # axis
sketch15.addConstraint([
    Sketcher.Constraint("Coincident", 0, 1, 1, 1),
    Sketcher.Constraint("Coincident", 1, 2, 0, 2),
    Sketcher.Constraint("Coincident", 2, 1, 3, 1),
    Sketcher.Constraint("Coincident", 3, 2, 2, 2),
    Sketcher.Constraint("Vertical", 0),
    Sketcher.Constraint("Vertical", 2),
    Sketcher.Constraint("Vertical", 4),
    Sketcher.Constraint("Coincident", 4, 1, 1, 2),
    Sketcher.Constraint("Coincident", 4, 2, 2, 1),
    Sketcher.Constraint("Equal", 1, 3),
    Sketcher.Constraint("Vertical", 1, 3, 3, 3),
    Sketcher.Constraint("Vertical", 3, 3, 0, 1),
    Sketcher.Constraint("Radius", 1, 1.5),
    Sketcher.Constraint("DistanceY", 4, 2, 4, 1, 7.5),
    Sketcher.Constraint("DistanceX", -1, 1, 1, 3, 5.0),
    Sketcher.Constraint("DistanceY", -1, 1, 3, 3, 29.0),
])
groove4 = doc.addObject("PartDesign::Groove", "Groove003")
body.addObject(groove4)
groove4.Profile = sketch15
groove4.ReferenceAxis = (sketch15, ["Axis0"])
groove4.Angle = 360

# Sketch on YZ plane
sketch16 = doc.addObject("Sketcher::SketchObject", "Sketch015")
body.addObject(sketch16)
sketch16.AttachmentSupport = (doc.YZ_Plane, [""])
sketch16.MapMode = "FlatFace"
sketch16.AttachmentOffset = App.Placement(App.Vector(0, 0, 39), App.Rotation())
sketch16.addGeometry([
    Part.Circle(App.Vector(31, -63, 0), App.Vector(0, 0, 1), 2.5),  # 0
    Part.Circle(App.Vector(31, -56, 0), App.Vector(0, 0, 1), 2),  # 1
    Part.ArcOfCircle(Part.Circle(App.Vector(31, -49, 0), App.Vector(0, 0, 1), 2), math.radians(0), math.radians(180)),  # 2
    Part.ArcOfCircle(Part.Circle(App.Vector(31, -49, 0), App.Vector(0, 0, 1), 2), math.radians(-180), math.radians(-90)),  # 3
    Part.ArcOfCircle(Part.Circle(App.Vector(31, -49, 0), App.Vector(0, 0, 1), 2), math.radians(-90), math.radians(0)),  # 4
    Part.Circle(App.Vector(31, -42, 0), App.Vector(0, 0, 1), 2),  # 5
    Part.Circle(App.Vector(31, -35, 0), App.Vector(0, 0, 1), 2.5),  # 6
], False)
sketch16.addConstraint([
    Sketcher.Constraint("Tangent", 2, 2, 3, 1),
    Sketcher.Constraint("Tangent", 3, 2, 4, 1),
    Sketcher.Constraint("Tangent", 4, 2, 2, 1),
    Sketcher.Constraint("Equal", 1, 2),
    Sketcher.Constraint("Equal", 4, 5),
    Sketcher.Constraint("Equal", 0, 6),
    Sketcher.Constraint("Horizontal", 4, 3, 2, 2),
    Sketcher.Constraint("Horizontal", 2, 2, 4, 2),
    Sketcher.Constraint("Vertical", 0, 3, 1, 3),
    Sketcher.Constraint("Vertical", 1, 3, 2, 3),
    Sketcher.Constraint("Vertical", 4, 3, 5, 3),
    Sketcher.Constraint("Vertical", 5, 3, 6, 3),
    Sketcher.Constraint("Vertical", 6, 3, 3, 2),
    Sketcher.Constraint("Diameter", 0, 5.0),
    Sketcher.Constraint("Diameter", 1, 4.0),
    Sketcher.Constraint("DistanceX", -1, 1, 0, 3, 31.0),
    Sketcher.Constraint("DistanceY", 0, 3, -1, 1, 63.0),
    Sketcher.Constraint("DistanceY", 1, 3, -1, 1, 56.0),
    Sketcher.Constraint("DistanceY", 2, 3, -1, 1, 49.0),
    Sketcher.Constraint("DistanceY", 5, 3, -1, 1, 42.0),
    Sketcher.Constraint("DistanceY", 6, 3, -1, 1, 35.0),
])
pocket8 = doc.addObject("PartDesign::Pocket", "Pocket007")
body.addObject(pocket8)
pocket8.Profile = sketch16
pocket8.Length = 1

doc.recompute()
